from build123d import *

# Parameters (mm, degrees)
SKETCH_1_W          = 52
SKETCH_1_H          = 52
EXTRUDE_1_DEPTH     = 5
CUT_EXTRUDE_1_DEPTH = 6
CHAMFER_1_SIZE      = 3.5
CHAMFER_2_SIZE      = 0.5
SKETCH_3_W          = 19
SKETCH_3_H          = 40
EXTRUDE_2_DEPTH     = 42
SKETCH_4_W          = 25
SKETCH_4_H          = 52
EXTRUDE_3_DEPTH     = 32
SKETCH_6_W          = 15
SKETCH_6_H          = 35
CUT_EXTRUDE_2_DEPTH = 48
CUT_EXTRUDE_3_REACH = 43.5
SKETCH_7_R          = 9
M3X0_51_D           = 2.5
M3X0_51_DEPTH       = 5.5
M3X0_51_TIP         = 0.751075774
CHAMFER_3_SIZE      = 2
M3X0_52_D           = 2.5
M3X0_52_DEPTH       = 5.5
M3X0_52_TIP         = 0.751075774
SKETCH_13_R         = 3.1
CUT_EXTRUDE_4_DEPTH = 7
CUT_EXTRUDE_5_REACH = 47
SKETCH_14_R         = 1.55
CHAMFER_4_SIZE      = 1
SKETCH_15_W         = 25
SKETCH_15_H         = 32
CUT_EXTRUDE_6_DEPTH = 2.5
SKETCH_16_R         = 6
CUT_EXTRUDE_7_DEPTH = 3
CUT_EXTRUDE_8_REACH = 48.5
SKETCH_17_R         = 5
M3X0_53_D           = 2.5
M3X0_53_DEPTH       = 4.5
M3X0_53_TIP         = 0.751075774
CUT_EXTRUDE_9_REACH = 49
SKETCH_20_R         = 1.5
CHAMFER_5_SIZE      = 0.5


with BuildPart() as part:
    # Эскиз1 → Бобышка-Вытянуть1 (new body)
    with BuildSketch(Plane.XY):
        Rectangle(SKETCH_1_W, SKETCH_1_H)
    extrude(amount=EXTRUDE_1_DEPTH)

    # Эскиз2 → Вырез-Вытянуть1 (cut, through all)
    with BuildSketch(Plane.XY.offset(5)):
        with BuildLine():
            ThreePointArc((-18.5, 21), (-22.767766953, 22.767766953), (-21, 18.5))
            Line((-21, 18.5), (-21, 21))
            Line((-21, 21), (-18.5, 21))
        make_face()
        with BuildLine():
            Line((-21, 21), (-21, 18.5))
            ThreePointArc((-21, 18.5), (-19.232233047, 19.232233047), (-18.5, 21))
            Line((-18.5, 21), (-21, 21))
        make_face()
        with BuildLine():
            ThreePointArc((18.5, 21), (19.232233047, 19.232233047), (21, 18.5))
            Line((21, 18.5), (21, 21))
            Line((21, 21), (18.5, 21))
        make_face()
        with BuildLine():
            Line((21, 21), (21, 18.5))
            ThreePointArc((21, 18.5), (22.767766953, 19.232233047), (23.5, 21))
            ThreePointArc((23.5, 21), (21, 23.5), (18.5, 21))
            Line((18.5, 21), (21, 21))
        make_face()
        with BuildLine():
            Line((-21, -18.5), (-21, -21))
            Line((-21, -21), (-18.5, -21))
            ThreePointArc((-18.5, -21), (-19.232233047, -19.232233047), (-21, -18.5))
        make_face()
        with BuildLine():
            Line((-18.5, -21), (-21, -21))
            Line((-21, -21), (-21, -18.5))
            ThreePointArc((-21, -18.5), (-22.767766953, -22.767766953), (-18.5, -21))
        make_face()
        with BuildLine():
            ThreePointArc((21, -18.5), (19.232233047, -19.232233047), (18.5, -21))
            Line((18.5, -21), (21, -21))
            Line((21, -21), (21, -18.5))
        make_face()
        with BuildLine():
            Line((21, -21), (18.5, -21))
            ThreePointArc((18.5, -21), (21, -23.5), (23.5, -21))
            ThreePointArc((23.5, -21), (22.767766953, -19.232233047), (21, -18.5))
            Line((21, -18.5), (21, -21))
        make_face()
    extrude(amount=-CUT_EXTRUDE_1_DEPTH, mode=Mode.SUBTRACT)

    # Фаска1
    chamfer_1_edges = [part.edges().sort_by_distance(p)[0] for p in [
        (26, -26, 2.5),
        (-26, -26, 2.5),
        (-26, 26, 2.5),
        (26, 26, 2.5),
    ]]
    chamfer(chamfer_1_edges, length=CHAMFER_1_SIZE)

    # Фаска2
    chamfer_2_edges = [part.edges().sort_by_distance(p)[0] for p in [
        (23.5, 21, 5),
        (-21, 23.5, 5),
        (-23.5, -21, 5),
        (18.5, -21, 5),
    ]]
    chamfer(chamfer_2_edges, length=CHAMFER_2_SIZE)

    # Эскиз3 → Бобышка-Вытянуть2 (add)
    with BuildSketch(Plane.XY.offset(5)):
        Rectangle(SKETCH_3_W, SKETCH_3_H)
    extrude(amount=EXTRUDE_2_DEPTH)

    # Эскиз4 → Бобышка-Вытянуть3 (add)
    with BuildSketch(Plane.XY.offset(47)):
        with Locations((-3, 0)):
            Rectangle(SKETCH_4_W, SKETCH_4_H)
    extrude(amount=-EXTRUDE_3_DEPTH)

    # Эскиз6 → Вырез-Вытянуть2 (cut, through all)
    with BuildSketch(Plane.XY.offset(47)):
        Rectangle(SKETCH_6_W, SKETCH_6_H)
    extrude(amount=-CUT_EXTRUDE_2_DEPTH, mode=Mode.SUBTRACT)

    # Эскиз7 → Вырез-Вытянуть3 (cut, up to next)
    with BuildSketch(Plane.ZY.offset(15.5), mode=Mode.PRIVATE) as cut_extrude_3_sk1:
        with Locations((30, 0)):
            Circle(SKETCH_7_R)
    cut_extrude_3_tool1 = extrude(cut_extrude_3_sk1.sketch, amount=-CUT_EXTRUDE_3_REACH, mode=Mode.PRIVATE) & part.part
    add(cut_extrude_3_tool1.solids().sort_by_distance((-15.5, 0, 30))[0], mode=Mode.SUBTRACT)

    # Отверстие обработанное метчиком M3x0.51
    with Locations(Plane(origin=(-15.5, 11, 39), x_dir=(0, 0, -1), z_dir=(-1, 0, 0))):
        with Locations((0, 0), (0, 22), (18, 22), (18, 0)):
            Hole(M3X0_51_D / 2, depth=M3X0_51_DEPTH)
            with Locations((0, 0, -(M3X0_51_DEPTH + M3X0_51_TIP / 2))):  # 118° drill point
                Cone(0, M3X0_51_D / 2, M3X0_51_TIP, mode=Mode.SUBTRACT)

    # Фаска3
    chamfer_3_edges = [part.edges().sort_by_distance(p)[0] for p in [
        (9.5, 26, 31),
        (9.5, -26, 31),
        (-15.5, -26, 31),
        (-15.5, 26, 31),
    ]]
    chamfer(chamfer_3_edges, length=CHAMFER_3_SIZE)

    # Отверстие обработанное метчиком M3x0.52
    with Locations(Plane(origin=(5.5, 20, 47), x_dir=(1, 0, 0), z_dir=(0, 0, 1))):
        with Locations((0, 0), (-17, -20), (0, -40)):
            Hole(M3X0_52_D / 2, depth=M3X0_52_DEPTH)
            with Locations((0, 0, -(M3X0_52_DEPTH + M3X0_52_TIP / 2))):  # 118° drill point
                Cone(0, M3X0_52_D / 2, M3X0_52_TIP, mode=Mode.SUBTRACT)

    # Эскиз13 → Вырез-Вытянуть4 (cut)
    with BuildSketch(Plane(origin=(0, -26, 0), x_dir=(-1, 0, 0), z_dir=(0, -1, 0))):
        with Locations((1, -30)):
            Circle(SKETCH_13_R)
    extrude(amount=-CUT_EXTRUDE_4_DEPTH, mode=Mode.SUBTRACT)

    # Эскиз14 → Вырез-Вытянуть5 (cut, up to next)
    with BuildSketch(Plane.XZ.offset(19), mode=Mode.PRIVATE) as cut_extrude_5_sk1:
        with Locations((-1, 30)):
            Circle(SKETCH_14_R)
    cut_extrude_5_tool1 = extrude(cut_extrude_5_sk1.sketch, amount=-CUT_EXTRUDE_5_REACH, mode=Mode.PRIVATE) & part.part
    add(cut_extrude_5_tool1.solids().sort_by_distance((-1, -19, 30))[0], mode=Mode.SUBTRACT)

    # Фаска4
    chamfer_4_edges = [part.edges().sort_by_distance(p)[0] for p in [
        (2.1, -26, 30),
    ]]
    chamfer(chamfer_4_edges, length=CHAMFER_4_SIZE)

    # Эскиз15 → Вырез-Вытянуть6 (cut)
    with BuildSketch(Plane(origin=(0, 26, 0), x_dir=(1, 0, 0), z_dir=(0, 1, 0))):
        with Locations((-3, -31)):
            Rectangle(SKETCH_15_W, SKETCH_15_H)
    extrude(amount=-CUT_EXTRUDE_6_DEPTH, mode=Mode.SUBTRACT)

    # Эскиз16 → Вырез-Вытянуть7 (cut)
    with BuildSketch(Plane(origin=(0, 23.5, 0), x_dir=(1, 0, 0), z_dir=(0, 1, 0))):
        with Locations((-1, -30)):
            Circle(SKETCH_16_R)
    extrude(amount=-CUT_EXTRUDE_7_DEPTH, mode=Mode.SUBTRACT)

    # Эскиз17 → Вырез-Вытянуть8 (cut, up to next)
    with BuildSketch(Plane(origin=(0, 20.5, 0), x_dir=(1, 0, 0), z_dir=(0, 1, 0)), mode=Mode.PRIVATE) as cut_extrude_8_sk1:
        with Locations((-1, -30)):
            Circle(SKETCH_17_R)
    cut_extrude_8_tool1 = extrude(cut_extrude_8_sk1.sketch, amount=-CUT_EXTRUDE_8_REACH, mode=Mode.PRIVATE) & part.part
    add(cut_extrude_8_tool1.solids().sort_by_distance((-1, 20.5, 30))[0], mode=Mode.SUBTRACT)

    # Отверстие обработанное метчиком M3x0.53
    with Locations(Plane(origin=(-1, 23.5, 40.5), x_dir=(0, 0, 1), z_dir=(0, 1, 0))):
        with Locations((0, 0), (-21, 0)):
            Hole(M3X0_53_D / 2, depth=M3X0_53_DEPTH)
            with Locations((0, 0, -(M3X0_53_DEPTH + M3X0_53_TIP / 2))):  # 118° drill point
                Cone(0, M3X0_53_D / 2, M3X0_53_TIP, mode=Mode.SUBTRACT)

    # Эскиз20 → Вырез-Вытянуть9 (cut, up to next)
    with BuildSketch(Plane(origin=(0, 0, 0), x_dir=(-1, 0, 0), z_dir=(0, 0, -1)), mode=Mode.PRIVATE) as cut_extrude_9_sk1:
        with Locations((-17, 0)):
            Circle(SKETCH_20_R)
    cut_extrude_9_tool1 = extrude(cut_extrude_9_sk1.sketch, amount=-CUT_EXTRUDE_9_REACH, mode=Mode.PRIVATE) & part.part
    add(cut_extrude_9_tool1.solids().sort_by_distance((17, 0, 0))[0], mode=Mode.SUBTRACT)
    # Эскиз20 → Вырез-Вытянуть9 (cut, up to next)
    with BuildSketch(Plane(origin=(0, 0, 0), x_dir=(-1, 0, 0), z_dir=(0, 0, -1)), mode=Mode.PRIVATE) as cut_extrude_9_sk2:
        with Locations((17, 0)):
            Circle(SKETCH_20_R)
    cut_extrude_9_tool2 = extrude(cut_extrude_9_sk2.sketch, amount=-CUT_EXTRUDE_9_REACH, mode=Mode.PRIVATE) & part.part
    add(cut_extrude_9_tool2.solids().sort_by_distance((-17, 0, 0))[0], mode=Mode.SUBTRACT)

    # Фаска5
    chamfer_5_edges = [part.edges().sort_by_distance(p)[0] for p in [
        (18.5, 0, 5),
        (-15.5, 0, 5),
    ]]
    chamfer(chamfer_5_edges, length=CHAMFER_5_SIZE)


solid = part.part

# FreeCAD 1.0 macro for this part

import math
import FreeCAD as App
import Part
import Sketcher
from FreeCAD import Vector
Q = App.Units.Quantity


def edges_at(feature, points):
    """Names of the edges that pass closest to the given points."""
    edges = feature.Shape.Edges
    near = lambda p: min(range(len(edges)), key=lambda i: edges[i].distToShape(Part.Vertex(*p))[0])
    return sorted({f"Edge{near(p) + 1}" for p in points})

doc = App.newDocument("Part")
params = doc.addObject("Spreadsheet::Sheet", "Params")
for row, (alias, value) in enumerate([
    ("sketch1_width", "52 mm"),
    ("pad1_length", "5 mm"),
    ("sketch2_radius", "2.5 mm"),
    ("chamfer_size", "3.5 mm"),
    ("chamfer2_size", "0.5 mm"),
    ("sketch3_width", "19 mm"),
    ("sketch3_height", "40 mm"),
    ("pad2_length", "42 mm"),
    ("sketch4_width", "25 mm"),
    ("sketch4_height", "52 mm"),
    ("pad3_length", "32 mm"),
    ("sketch5_width", "15 mm"),
    ("sketch5_height", "35 mm"),
    ("sketch6_diameter", "18 mm"),
    ("sketch7_diameter", "2.5 mm"),
    ("hole_diameter", "2.5 mm"),
    ("hole_depth", "5.5 mm"),
    ("chamfer3_size", "2 mm"),
    ("sketch8_diameter", "2.5 mm"),
    ("hole2_diameter", "2.5 mm"),
    ("hole2_depth", "5.5 mm"),
    ("sketch9_diameter", "6.2 mm"),
    ("pocket4_length", "7 mm"),
    ("sketch10_diameter", "3.1 mm"),
    ("chamfer4_size", "1 mm"),
    ("sketch11_width", "25 mm"),
    ("sketch11_height", "32 mm"),
    ("pocket6_length", "2.5 mm"),
    ("sketch12_diameter", "12 mm"),
    ("pocket7_length", "3 mm"),
    ("sketch13_diameter", "10 mm"),
    ("sketch14_diameter", "2.5 mm"),
    ("hole3_diameter", "2.5 mm"),
    ("hole3_depth", "4.5 mm"),
    ("sketch15_diameter", "3 mm"),
    ("sketch16_diameter", "3 mm"),
    ("chamfer5_size", "0.5 mm"),
], start=1):
    params.set(f"A{row}", alias)
    params.set(f"B{row}", "=" + value)
    params.setAlias(f"B{row}", alias)

body = doc.addObject("PartDesign::Body", "Body")

# Sketch on XY plane
sketch1 = doc.addObject("Sketcher::SketchObject", "Sketch")
body.addObject(sketch1)
sketch1.AttachmentSupport = (doc.XY_Plane, [""])
sketch1.MapMode = "FlatFace"
sketch1.addGeometry([
    Part.LineSegment(Vector(-26, 26, 0), Vector(-26, -26, 0)),
    Part.LineSegment(Vector(-26, -26, 0), Vector(26, -26, 0)),
    Part.LineSegment(Vector(26, -26, 0), Vector(26, 26, 0)),
    Part.LineSegment(Vector(26, 26, 0), Vector(-26, 26, 0)),
], False)
sketch1.addConstraint([
    Sketcher.Constraint("Coincident", 0, 2, 1, 1),
    Sketcher.Constraint("Coincident", 1, 2, 2, 1),
    Sketcher.Constraint("Coincident", 2, 2, 3, 1),
    Sketcher.Constraint("Coincident", 3, 2, 0, 1),
    Sketcher.Constraint("Vertical", 0),
    Sketcher.Constraint("Horizontal", 1),
    Sketcher.Constraint("Vertical", 2),
    Sketcher.Constraint("Horizontal", 3),
    Sketcher.Constraint("Symmetric", 0, 2, 2, 2, -1, 1),
    Sketcher.Constraint("Equal", 3, 0),
    Sketcher.Constraint("DistanceX", 1, 1, 1, 2, Q("52 mm")),
])
sketch1.setExpression("Constraints[10]", "Params.sketch1_width")
pad1 = doc.addObject("PartDesign::Pad", "Pad")
body.addObject(pad1)
pad1.Profile = sketch1
pad1.setExpression("Length", "Params.pad1_length")

# Sketch on XY plane
sketch2 = doc.addObject("Sketcher::SketchObject", "Sketch001")
body.addObject(sketch2)
sketch2.AttachmentSupport = (doc.XY_Plane, [""])
sketch2.MapMode = "FlatFace"
sketch2.AttachmentOffset = App.Placement(Vector(0, 0, 5), App.Rotation())
sketch2.addGeometry([
    Part.ArcOfCircle(Part.Circle(Vector(-21, 21, 0), Vector(0, 0, 1), 2.5), math.radians(0), math.radians(270)),  # 0
    Part.ArcOfCircle(Part.Circle(Vector(-21, 21, 0), Vector(0, 0, 1), 2.5), math.radians(-90), math.radians(0)),  # 1
    Part.ArcOfCircle(Part.Circle(Vector(21, 21, 0), Vector(0, 0, 1), 2.5), math.radians(180), math.radians(270)),  # 2
    Part.ArcOfCircle(Part.Circle(Vector(21, 21, 0), Vector(0, 0, 1), 2.5), math.radians(-90), math.radians(0)),  # 3
    Part.ArcOfCircle(Part.Circle(Vector(21, 21, 0), Vector(0, 0, 1), 2.5), math.radians(0), math.radians(180)),  # 4
    Part.ArcOfCircle(Part.Circle(Vector(-21, -21, 0), Vector(0, 0, 1), 2.5), math.radians(0), math.radians(90)),  # 5
    Part.ArcOfCircle(Part.Circle(Vector(-21, -21, 0), Vector(0, 0, 1), 2.5), math.radians(90), math.radians(360)),  # 6
    Part.ArcOfCircle(Part.Circle(Vector(21, -21, 0), Vector(0, 0, 1), 2.5), math.radians(90), math.radians(180)),  # 7
    Part.ArcOfCircle(Part.Circle(Vector(21, -21, 0), Vector(0, 0, 1), 2.5), math.radians(180), math.radians(360)),  # 8
    Part.ArcOfCircle(Part.Circle(Vector(21, -21, 0), Vector(0, 0, 1), 2.5), math.radians(0), math.radians(90)),  # 9
], False)
sketch2.addConstraint([
    Sketcher.Constraint("Tangent", 0, 1, 1, 2),
    Sketcher.Constraint("Coincident", 1, 1, 0, 2),
    Sketcher.Constraint("Tangent", 2, 2, 3, 1),
    Sketcher.Constraint("Tangent", 3, 2, 4, 1),
    Sketcher.Constraint("Tangent", 4, 2, 2, 1),
    Sketcher.Constraint("Tangent", 5, 1, 6, 2),
    Sketcher.Constraint("Coincident", 6, 1, 5, 2),
    Sketcher.Constraint("Tangent", 7, 2, 8, 1),
    Sketcher.Constraint("Tangent", 8, 2, 9, 1),
    Sketcher.Constraint("Tangent", 9, 2, 7, 1),
    Sketcher.Constraint("Equal", 1, 2),
    Sketcher.Constraint("Equal", 4, 5),
    Sketcher.Constraint("Equal", 6, 7),
    Sketcher.Constraint("Symmetric", 2, 3, 5, 3, -1, 1),
    Sketcher.Constraint("Symmetric", 0, 3, 7, 3, -1, 1),
    Sketcher.Constraint("Symmetric", 0, 3, 2, 3, -2),
    Sketcher.Constraint("Horizontal", 4, 3, 0, 1),
    Sketcher.Constraint("Horizontal", 0, 1, 3, 2),
    Sketcher.Constraint("Horizontal", 3, 2, 4, 2),
    Sketcher.Constraint("Horizontal", 9, 3, 5, 1),
    Sketcher.Constraint("Horizontal", 5, 1, 7, 2),
    Sketcher.Constraint("Horizontal", 7, 2, 8, 2),
    Sketcher.Constraint("Vertical", 6, 3, 1, 1),
    Sketcher.Constraint("Vertical", 9, 3, 2, 2),
    Sketcher.Constraint("Vertical", 1, 1, 6, 1),
    Sketcher.Constraint("Vertical", 2, 2, 9, 2),
    Sketcher.Constraint("Radius", 0, Q("2.5 mm")),
    Sketcher.Constraint("DistanceX", 0, 3, -1, 1, Q("21 mm")),
    Sketcher.Constraint("DistanceY", -1, 1, 0, 3, Q("21 mm")),
])
sketch2.setExpression("Constraints[26]", "Params.sketch2_radius")
pocket1 = doc.addObject("PartDesign::Pocket", "Pocket")
body.addObject(pocket1)
pocket1.Profile = sketch2
pocket1.Type = "ThroughAll"
doc.recompute()

chamfer = doc.addObject("PartDesign::Chamfer", "Chamfer")
body.addObject(chamfer)
chamfer.Base = (pocket1, edges_at(pocket1, [
    (26, -26, 2.5),
    (-26, -26, 2.5),
    (-26, 26, 2.5),
    (26, 26, 2.5),
]))
chamfer.setExpression("Size", "Params.chamfer_size")
doc.recompute()

chamfer2 = doc.addObject("PartDesign::Chamfer", "Chamfer001")
body.addObject(chamfer2)
chamfer2.Base = (chamfer, edges_at(chamfer, [
    (22.768, 19.232, 5),
    (-22.768, 22.768, 5),
    (-22.768, -22.768, 5),
    (19.232, -19.232, 5),
]))
chamfer2.setExpression("Size", "Params.chamfer2_size")

# Sketch on XY plane
sketch3 = doc.addObject("Sketcher::SketchObject", "Sketch002")
body.addObject(sketch3)
sketch3.AttachmentSupport = (doc.XY_Plane, [""])
sketch3.MapMode = "FlatFace"
sketch3.AttachmentOffset = App.Placement(Vector(0, 0, 5), App.Rotation())
sketch3.addGeometry([
    Part.LineSegment(Vector(-9.5, 20, 0), Vector(-9.5, -20, 0)),
    Part.LineSegment(Vector(-9.5, -20, 0), Vector(9.5, -20, 0)),
    Part.LineSegment(Vector(9.5, -20, 0), Vector(9.5, 20, 0)),
    Part.LineSegment(Vector(9.5, 20, 0), Vector(-9.5, 20, 0)),
], False)
sketch3.addConstraint([
    Sketcher.Constraint("Coincident", 0, 2, 1, 1),
    Sketcher.Constraint("Coincident", 1, 2, 2, 1),
    Sketcher.Constraint("Coincident", 2, 2, 3, 1),
    Sketcher.Constraint("Coincident", 3, 2, 0, 1),
    Sketcher.Constraint("Vertical", 0),
    Sketcher.Constraint("Horizontal", 1),
    Sketcher.Constraint("Vertical", 2),
    Sketcher.Constraint("Horizontal", 3),
    Sketcher.Constraint("Symmetric", 0, 2, 2, 2, -1, 1),
    Sketcher.Constraint("DistanceX", 1, 1, 1, 2, Q("19 mm")),
    Sketcher.Constraint("DistanceY", 0, 2, 0, 1, Q("40 mm")),
])
sketch3.setExpression("Constraints[9]", "Params.sketch3_width")
sketch3.setExpression("Constraints[10]", "Params.sketch3_height")
pad2 = doc.addObject("PartDesign::Pad", "Pad001")
body.addObject(pad2)
pad2.Profile = sketch3
pad2.setExpression("Length", "Params.pad2_length")

# Sketch on XY plane
sketch4 = doc.addObject("Sketcher::SketchObject", "Sketch003")
body.addObject(sketch4)
sketch4.AttachmentSupport = (doc.XY_Plane, [""])
sketch4.MapMode = "FlatFace"
sketch4.AttachmentOffset = App.Placement(Vector(0, 0, 47), App.Rotation())
sketch4.addGeometry([
    Part.LineSegment(Vector(-15.5, 26, 0), Vector(-15.5, -26, 0)),
    Part.LineSegment(Vector(-15.5, -26, 0), Vector(9.5, -26, 0)),
    Part.LineSegment(Vector(9.5, -26, 0), Vector(9.5, 26, 0)),
    Part.LineSegment(Vector(9.5, 26, 0), Vector(-15.5, 26, 0)),
], False)
sketch4.addConstraint([
    Sketcher.Constraint("Coincident", 0, 2, 1, 1),
    Sketcher.Constraint("Coincident", 1, 2, 2, 1),
    Sketcher.Constraint("Coincident", 2, 2, 3, 1),
    Sketcher.Constraint("Coincident", 3, 2, 0, 1),
    Sketcher.Constraint("Vertical", 0),
    Sketcher.Constraint("Horizontal", 1),
    Sketcher.Constraint("Vertical", 2),
    Sketcher.Constraint("Horizontal", 3),
    Sketcher.Constraint("DistanceX", 1, 1, 1, 2, Q("25 mm")),
    Sketcher.Constraint("DistanceY", 0, 2, 0, 1, Q("52 mm")),
    Sketcher.Constraint("DistanceY", 0, 2, -1, 1, Q("26 mm")),
    Sketcher.Constraint("DistanceX", 0, 2, -1, 1, Q("15.5 mm")),
])
sketch4.setExpression("Constraints[8]", "Params.sketch4_width")
sketch4.setExpression("Constraints[9]", "Params.sketch4_height")
pad3 = doc.addObject("PartDesign::Pad", "Pad002")
body.addObject(pad3)
pad3.Profile = sketch4
pad3.setExpression("Length", "Params.pad3_length")
pad3.Reversed = True

# Sketch on XY plane
sketch5 = doc.addObject("Sketcher::SketchObject", "Sketch004")
body.addObject(sketch5)
sketch5.AttachmentSupport = (doc.XY_Plane, [""])
sketch5.MapMode = "FlatFace"
sketch5.AttachmentOffset = App.Placement(Vector(0, 0, 47), App.Rotation())
sketch5.addGeometry([
    Part.LineSegment(Vector(-7.5, 17.5, 0), Vector(-7.5, -17.5, 0)),
    Part.LineSegment(Vector(-7.5, -17.5, 0), Vector(7.5, -17.5, 0)),
    Part.LineSegment(Vector(7.5, -17.5, 0), Vector(7.5, 17.5, 0)),
    Part.LineSegment(Vector(7.5, 17.5, 0), Vector(-7.5, 17.5, 0)),
], False)
sketch5.addConstraint([
    Sketcher.Constraint("Coincident", 0, 2, 1, 1),
    Sketcher.Constraint("Coincident", 1, 2, 2, 1),
    Sketcher.Constraint("Coincident", 2, 2, 3, 1),
    Sketcher.Constraint("Coincident", 3, 2, 0, 1),
    Sketcher.Constraint("Vertical", 0),
    Sketcher.Constraint("Horizontal", 1),
    Sketcher.Constraint("Vertical", 2),
    Sketcher.Constraint("Horizontal", 3),
    Sketcher.Constraint("Symmetric", 0, 2, 2, 2, -1, 1),
    Sketcher.Constraint("DistanceX", 1, 1, 1, 2, Q("15 mm")),
    Sketcher.Constraint("DistanceY", 0, 2, 0, 1, Q("35 mm")),
])
sketch5.setExpression("Constraints[9]", "Params.sketch5_width")
sketch5.setExpression("Constraints[10]", "Params.sketch5_height")
pocket2 = doc.addObject("PartDesign::Pocket", "Pocket001")
body.addObject(pocket2)
pocket2.Profile = sketch5
pocket2.Type = "ThroughAll"

# Sketch on YZ plane
sketch6 = doc.addObject("Sketcher::SketchObject", "Sketch005")
body.addObject(sketch6)
sketch6.AttachmentSupport = (doc.YZ_Plane, [""])
sketch6.MapMode = "FlatFace"
sketch6.AttachmentOffset = App.Placement(Vector(0, 0, -15.5), App.Rotation())
sketch6.addGeometry(Part.Circle(Vector(0, 30, 0), Vector(0, 0, 1), 9), False)
sketch6.addConstraint([
    Sketcher.Constraint("PointOnObject", 0, 3, -2),
    Sketcher.Constraint("Diameter", 0, Q("18 mm")),
    Sketcher.Constraint("DistanceY", -1, 1, 0, 3, Q("30 mm")),
])
sketch6.setExpression("Constraints[1]", "Params.sketch6_diameter")
pocket3 = doc.addObject("PartDesign::Pocket", "Pocket002")
body.addObject(pocket3)
pocket3.Profile = sketch6
pocket3.Type = "UpToFirst"
pocket3.Reversed = True

# Sketch on YZ plane
sketch7 = doc.addObject("Sketcher::SketchObject", "Sketch006")
body.addObject(sketch7)
sketch7.AttachmentSupport = (doc.YZ_Plane, [""])
sketch7.MapMode = "FlatFace"
sketch7.AttachmentOffset = App.Placement(Vector(0, 0, -15.5), App.Rotation())
sketch7.addGeometry([
    Part.Circle(Vector(11, 39, 0), Vector(0, 0, 1), 1.25),
    Part.Circle(Vector(-11, 39, 0), Vector(0, 0, 1), 1.25),
    Part.Circle(Vector(-11, 21, 0), Vector(0, 0, 1), 1.25),
    Part.Circle(Vector(11, 21, 0), Vector(0, 0, 1), 1.25),
], False)
sketch7.addConstraint([
    Sketcher.Constraint("Equal", 0, 1),
    Sketcher.Constraint("Equal", 1, 2),
    Sketcher.Constraint("Equal", 2, 3),
    Sketcher.Constraint("Symmetric", 0, 3, 1, 3, -2),
    Sketcher.Constraint("Symmetric", 2, 3, 3, 3, -2),
    Sketcher.Constraint("Vertical", 1, 3, 2, 3),
    Sketcher.Constraint("Diameter", 0, Q("2.5 mm")),
    Sketcher.Constraint("DistanceX", -1, 1, 0, 3, Q("11 mm")),
    Sketcher.Constraint("DistanceY", -1, 1, 0, 3, Q("39 mm")),
    Sketcher.Constraint("DistanceY", -1, 1, 2, 3, Q("21 mm")),
])
sketch7.setExpression("Constraints[6]", "Params.sketch7_diameter")
doc.recompute()
hole = doc.addObject("PartDesign::Hole", "Hole")
body.addObject(hole)
hole.Profile = sketch7
hole.ThreadType = "None"
hole.setExpression("Diameter", "Params.hole_diameter")
hole.DepthType = "Dimension"
hole.setExpression("Depth", "Params.hole_depth")
hole.DrillPoint = "Angled"
hole.DrillPointAngle = 118
hole.Reversed = True
doc.recompute()

chamfer3 = doc.addObject("PartDesign::Chamfer", "Chamfer002")
body.addObject(chamfer3)
chamfer3.Base = (hole, edges_at(hole, [
    (9.5, 26, 31),
    (9.5, -26, 31),
    (-15.5, -26, 31),
    (-15.5, 26, 31),
]))
chamfer3.setExpression("Size", "Params.chamfer3_size")

# Sketch on XY plane
sketch8 = doc.addObject("Sketcher::SketchObject", "Sketch007")
body.addObject(sketch8)
sketch8.AttachmentSupport = (doc.XY_Plane, [""])
sketch8.MapMode = "FlatFace"
sketch8.AttachmentOffset = App.Placement(Vector(0, 0, 47), App.Rotation())
sketch8.addGeometry([
    Part.Circle(Vector(5.5, 20, 0), Vector(0, 0, 1), 1.25),
    Part.Circle(Vector(-11.5, 0, 0), Vector(0, 0, 1), 1.25),
    Part.Circle(Vector(5.5, -20, 0), Vector(0, 0, 1), 1.25),
], False)
sketch8.addConstraint([
    Sketcher.Constraint("Equal", 0, 1),
    Sketcher.Constraint("Equal", 1, 2),
    Sketcher.Constraint("Symmetric", 0, 3, 2, 3, -1),
    Sketcher.Constraint("PointOnObject", 1, 3, -1),
    Sketcher.Constraint("Diameter", 0, Q("2.5 mm")),
    Sketcher.Constraint("DistanceY", -1, 1, 0, 3, Q("20 mm")),
    Sketcher.Constraint("DistanceX", 1, 3, 0, 3, Q("17 mm")),
    Sketcher.Constraint("DistanceX", -1, 1, 0, 3, Q("5.5 mm")),
])
sketch8.setExpression("Constraints[4]", "Params.sketch8_diameter")
doc.recompute()
hole2 = doc.addObject("PartDesign::Hole", "Hole001")
body.addObject(hole2)
hole2.Profile = sketch8
hole2.ThreadType = "None"
hole2.setExpression("Diameter", "Params.hole2_diameter")
hole2.DepthType = "Dimension"
hole2.setExpression("Depth", "Params.hole2_depth")
hole2.DrillPoint = "Angled"
hole2.DrillPointAngle = 118

# Sketch on XZ plane
sketch9 = doc.addObject("Sketcher::SketchObject", "Sketch008")
body.addObject(sketch9)
sketch9.AttachmentSupport = (doc.XZ_Plane, [""])
sketch9.MapMode = "FlatFace"
sketch9.AttachmentOffset = App.Placement(Vector(0, 0, 26), App.Rotation())
sketch9.addGeometry(Part.Circle(Vector(-1, 30, 0), Vector(0, 0, 1), 3.1), False)
sketch9.addConstraint([
    Sketcher.Constraint("Diameter", 0, Q("6.2 mm")),
    Sketcher.Constraint("DistanceX", 0, 3, -1, 1, Q("1 mm")),
    Sketcher.Constraint("DistanceY", -1, 1, 0, 3, Q("30 mm")),
])
sketch9.setExpression("Constraints[0]", "Params.sketch9_diameter")
pocket4 = doc.addObject("PartDesign::Pocket", "Pocket003")
body.addObject(pocket4)
pocket4.Profile = sketch9
pocket4.setExpression("Length", "Params.pocket4_length")

# Sketch on XZ plane
sketch10 = doc.addObject("Sketcher::SketchObject", "Sketch009")
body.addObject(sketch10)
sketch10.AttachmentSupport = (doc.XZ_Plane, [""])
sketch10.MapMode = "FlatFace"
sketch10.AttachmentOffset = App.Placement(Vector(0, 0, 19), App.Rotation())
sketch10.addGeometry(Part.Circle(Vector(-1, 30, 0), Vector(0, 0, 1), 1.55), False)
sketch10.addConstraint([
    Sketcher.Constraint("Diameter", 0, Q("3.1 mm")),
    Sketcher.Constraint("DistanceX", 0, 3, -1, 1, Q("1 mm")),
    Sketcher.Constraint("DistanceY", -1, 1, 0, 3, Q("30 mm")),
])
sketch10.setExpression("Constraints[0]", "Params.sketch10_diameter")
pocket5 = doc.addObject("PartDesign::Pocket", "Pocket004")
body.addObject(pocket5)
pocket5.Profile = sketch10
pocket5.Type = "UpToFirst"
doc.recompute()

chamfer4 = doc.addObject("PartDesign::Chamfer", "Chamfer003")
body.addObject(chamfer4)
chamfer4.Base = (pocket5, edges_at(pocket5, [(2.1, -26, 30)]))
chamfer4.setExpression("Size", "Params.chamfer4_size")

# Sketch on XZ plane
sketch11 = doc.addObject("Sketcher::SketchObject", "Sketch010")
body.addObject(sketch11)
sketch11.AttachmentSupport = (doc.XZ_Plane, [""])
sketch11.MapMode = "FlatFace"
sketch11.AttachmentOffset = App.Placement(Vector(0, 0, -26), App.Rotation())
sketch11.addGeometry([
    Part.LineSegment(Vector(-15.5, 15, 0), Vector(-15.5, 47, 0)),
    Part.LineSegment(Vector(-15.5, 47, 0), Vector(9.5, 47, 0)),
    Part.LineSegment(Vector(9.5, 47, 0), Vector(9.5, 15, 0)),
    Part.LineSegment(Vector(9.5, 15, 0), Vector(-15.5, 15, 0)),
], False)
sketch11.addConstraint([
    Sketcher.Constraint("Coincident", 0, 2, 1, 1),
    Sketcher.Constraint("Coincident", 1, 2, 2, 1),
    Sketcher.Constraint("Coincident", 2, 2, 3, 1),
    Sketcher.Constraint("Coincident", 3, 2, 0, 1),
    Sketcher.Constraint("Vertical", 0),
    Sketcher.Constraint("Horizontal", 1),
    Sketcher.Constraint("Vertical", 2),
    Sketcher.Constraint("Horizontal", 3),
    Sketcher.Constraint("DistanceX", 1, 1, 1, 2, Q("25 mm")),
    Sketcher.Constraint("DistanceY", 0, 1, 0, 2, Q("32 mm")),
    Sketcher.Constraint("DistanceY", -1, 1, 0, 2, Q("47 mm")),
    Sketcher.Constraint("DistanceX", 0, 2, -1, 1, Q("15.5 mm")),
])
sketch11.setExpression("Constraints[8]", "Params.sketch11_width")
sketch11.setExpression("Constraints[9]", "Params.sketch11_height")
pocket6 = doc.addObject("PartDesign::Pocket", "Pocket005")
body.addObject(pocket6)
pocket6.Profile = sketch11
pocket6.setExpression("Length", "Params.pocket6_length")
pocket6.Reversed = True

# Sketch on XZ plane
sketch12 = doc.addObject("Sketcher::SketchObject", "Sketch011")
body.addObject(sketch12)
sketch12.AttachmentSupport = (doc.XZ_Plane, [""])
sketch12.MapMode = "FlatFace"
sketch12.AttachmentOffset = App.Placement(Vector(0, 0, -23.5), App.Rotation())
sketch12.addGeometry(Part.Circle(Vector(-1, 30, 0), Vector(0, 0, 1), 6), False)
sketch12.addConstraint([
    Sketcher.Constraint("Diameter", 0, Q("12 mm")),
    Sketcher.Constraint("DistanceX", 0, 3, -1, 1, Q("1 mm")),
    Sketcher.Constraint("DistanceY", -1, 1, 0, 3, Q("30 mm")),
])
sketch12.setExpression("Constraints[0]", "Params.sketch12_diameter")
pocket7 = doc.addObject("PartDesign::Pocket", "Pocket006")
body.addObject(pocket7)
pocket7.Profile = sketch12
pocket7.setExpression("Length", "Params.pocket7_length")
pocket7.Reversed = True

# Sketch on XZ plane
sketch13 = doc.addObject("Sketcher::SketchObject", "Sketch012")
body.addObject(sketch13)
sketch13.AttachmentSupport = (doc.XZ_Plane, [""])
sketch13.MapMode = "FlatFace"
sketch13.AttachmentOffset = App.Placement(Vector(0, 0, -20.5), App.Rotation())
sketch13.addGeometry(Part.Circle(Vector(-1, 30, 0), Vector(0, 0, 1), 5), False)
sketch13.addConstraint([
    Sketcher.Constraint("Diameter", 0, Q("10 mm")),
    Sketcher.Constraint("DistanceX", 0, 3, -1, 1, Q("1 mm")),
    Sketcher.Constraint("DistanceY", -1, 1, 0, 3, Q("30 mm")),
])
sketch13.setExpression("Constraints[0]", "Params.sketch13_diameter")
pocket8 = doc.addObject("PartDesign::Pocket", "Pocket007")
body.addObject(pocket8)
pocket8.Profile = sketch13
pocket8.Type = "UpToFirst"
pocket8.Reversed = True

# Sketch on XZ plane
sketch14 = doc.addObject("Sketcher::SketchObject", "Sketch013")
body.addObject(sketch14)
sketch14.AttachmentSupport = (doc.XZ_Plane, [""])
sketch14.MapMode = "FlatFace"
sketch14.AttachmentOffset = App.Placement(Vector(0, 0, -23.5), App.Rotation())
sketch14.addGeometry([
    Part.Circle(Vector(-1, 40.5, 0), Vector(0, 0, 1), 1.25),
    Part.Circle(Vector(-1, 19.5, 0), Vector(0, 0, 1), 1.25),
], False)
sketch14.addConstraint([
    Sketcher.Constraint("Equal", 0, 1),
    Sketcher.Constraint("Vertical", 0, 3, 1, 3),
    Sketcher.Constraint("Diameter", 0, Q("2.5 mm")),
    Sketcher.Constraint("DistanceX", 0, 3, -1, 1, Q("1 mm")),
    Sketcher.Constraint("DistanceY", 1, 3, 0, 3, Q("21 mm")),
    Sketcher.Constraint("DistanceY", -1, 1, 0, 3, Q("40.5 mm")),
])
sketch14.setExpression("Constraints[2]", "Params.sketch14_diameter")
doc.recompute()
hole3 = doc.addObject("PartDesign::Hole", "Hole002")
body.addObject(hole3)
hole3.Profile = sketch14
hole3.ThreadType = "None"
hole3.setExpression("Diameter", "Params.hole3_diameter")
hole3.DepthType = "Dimension"
hole3.setExpression("Depth", "Params.hole3_depth")
hole3.DrillPoint = "Angled"
hole3.DrillPointAngle = 118
hole3.Reversed = True

# Sketch on XY plane
sketch15 = doc.addObject("Sketcher::SketchObject", "Sketch014")
body.addObject(sketch15)
sketch15.AttachmentSupport = (doc.XY_Plane, [""])
sketch15.MapMode = "FlatFace"
sketch15.addGeometry(Part.Circle(Vector(17, 0, 0), Vector(0, 0, 1), 1.5), False)
sketch15.addConstraint([
    Sketcher.Constraint("PointOnObject", 0, 3, -1),
    Sketcher.Constraint("Diameter", 0, Q("3 mm")),
    Sketcher.Constraint("DistanceX", -1, 1, 0, 3, Q("17 mm")),
])
sketch15.setExpression("Constraints[1]", "Params.sketch15_diameter")
pocket9 = doc.addObject("PartDesign::Pocket", "Pocket008")
body.addObject(pocket9)
pocket9.Profile = sketch15
pocket9.Type = "UpToFirst"
pocket9.Reversed = True

# Sketch on XY plane
sketch16 = doc.addObject("Sketcher::SketchObject", "Sketch015")
body.addObject(sketch16)
sketch16.AttachmentSupport = (doc.XY_Plane, [""])
sketch16.MapMode = "FlatFace"
sketch16.addGeometry(Part.Circle(Vector(-17, 0, 0), Vector(0, 0, 1), 1.5), False)
sketch16.addConstraint([
    Sketcher.Constraint("PointOnObject", 0, 3, -1),
    Sketcher.Constraint("Diameter", 0, Q("3 mm")),
    Sketcher.Constraint("DistanceX", 0, 3, -1, 1, Q("17 mm")),
])
sketch16.setExpression("Constraints[1]", "Params.sketch16_diameter")
pocket10 = doc.addObject("PartDesign::Pocket", "Pocket009")
body.addObject(pocket10)
pocket10.Profile = sketch16
pocket10.Type = "UpToFirst"
pocket10.Reversed = True
doc.recompute()

chamfer5 = doc.addObject("PartDesign::Chamfer", "Chamfer004")
body.addObject(chamfer5)
chamfer5.Base = (pocket10, edges_at(pocket10, [(18.5, 0, 5), (-15.5, 0, 5)]))
chamfer5.setExpression("Size", "Params.chamfer5_size")

doc.recompute()
